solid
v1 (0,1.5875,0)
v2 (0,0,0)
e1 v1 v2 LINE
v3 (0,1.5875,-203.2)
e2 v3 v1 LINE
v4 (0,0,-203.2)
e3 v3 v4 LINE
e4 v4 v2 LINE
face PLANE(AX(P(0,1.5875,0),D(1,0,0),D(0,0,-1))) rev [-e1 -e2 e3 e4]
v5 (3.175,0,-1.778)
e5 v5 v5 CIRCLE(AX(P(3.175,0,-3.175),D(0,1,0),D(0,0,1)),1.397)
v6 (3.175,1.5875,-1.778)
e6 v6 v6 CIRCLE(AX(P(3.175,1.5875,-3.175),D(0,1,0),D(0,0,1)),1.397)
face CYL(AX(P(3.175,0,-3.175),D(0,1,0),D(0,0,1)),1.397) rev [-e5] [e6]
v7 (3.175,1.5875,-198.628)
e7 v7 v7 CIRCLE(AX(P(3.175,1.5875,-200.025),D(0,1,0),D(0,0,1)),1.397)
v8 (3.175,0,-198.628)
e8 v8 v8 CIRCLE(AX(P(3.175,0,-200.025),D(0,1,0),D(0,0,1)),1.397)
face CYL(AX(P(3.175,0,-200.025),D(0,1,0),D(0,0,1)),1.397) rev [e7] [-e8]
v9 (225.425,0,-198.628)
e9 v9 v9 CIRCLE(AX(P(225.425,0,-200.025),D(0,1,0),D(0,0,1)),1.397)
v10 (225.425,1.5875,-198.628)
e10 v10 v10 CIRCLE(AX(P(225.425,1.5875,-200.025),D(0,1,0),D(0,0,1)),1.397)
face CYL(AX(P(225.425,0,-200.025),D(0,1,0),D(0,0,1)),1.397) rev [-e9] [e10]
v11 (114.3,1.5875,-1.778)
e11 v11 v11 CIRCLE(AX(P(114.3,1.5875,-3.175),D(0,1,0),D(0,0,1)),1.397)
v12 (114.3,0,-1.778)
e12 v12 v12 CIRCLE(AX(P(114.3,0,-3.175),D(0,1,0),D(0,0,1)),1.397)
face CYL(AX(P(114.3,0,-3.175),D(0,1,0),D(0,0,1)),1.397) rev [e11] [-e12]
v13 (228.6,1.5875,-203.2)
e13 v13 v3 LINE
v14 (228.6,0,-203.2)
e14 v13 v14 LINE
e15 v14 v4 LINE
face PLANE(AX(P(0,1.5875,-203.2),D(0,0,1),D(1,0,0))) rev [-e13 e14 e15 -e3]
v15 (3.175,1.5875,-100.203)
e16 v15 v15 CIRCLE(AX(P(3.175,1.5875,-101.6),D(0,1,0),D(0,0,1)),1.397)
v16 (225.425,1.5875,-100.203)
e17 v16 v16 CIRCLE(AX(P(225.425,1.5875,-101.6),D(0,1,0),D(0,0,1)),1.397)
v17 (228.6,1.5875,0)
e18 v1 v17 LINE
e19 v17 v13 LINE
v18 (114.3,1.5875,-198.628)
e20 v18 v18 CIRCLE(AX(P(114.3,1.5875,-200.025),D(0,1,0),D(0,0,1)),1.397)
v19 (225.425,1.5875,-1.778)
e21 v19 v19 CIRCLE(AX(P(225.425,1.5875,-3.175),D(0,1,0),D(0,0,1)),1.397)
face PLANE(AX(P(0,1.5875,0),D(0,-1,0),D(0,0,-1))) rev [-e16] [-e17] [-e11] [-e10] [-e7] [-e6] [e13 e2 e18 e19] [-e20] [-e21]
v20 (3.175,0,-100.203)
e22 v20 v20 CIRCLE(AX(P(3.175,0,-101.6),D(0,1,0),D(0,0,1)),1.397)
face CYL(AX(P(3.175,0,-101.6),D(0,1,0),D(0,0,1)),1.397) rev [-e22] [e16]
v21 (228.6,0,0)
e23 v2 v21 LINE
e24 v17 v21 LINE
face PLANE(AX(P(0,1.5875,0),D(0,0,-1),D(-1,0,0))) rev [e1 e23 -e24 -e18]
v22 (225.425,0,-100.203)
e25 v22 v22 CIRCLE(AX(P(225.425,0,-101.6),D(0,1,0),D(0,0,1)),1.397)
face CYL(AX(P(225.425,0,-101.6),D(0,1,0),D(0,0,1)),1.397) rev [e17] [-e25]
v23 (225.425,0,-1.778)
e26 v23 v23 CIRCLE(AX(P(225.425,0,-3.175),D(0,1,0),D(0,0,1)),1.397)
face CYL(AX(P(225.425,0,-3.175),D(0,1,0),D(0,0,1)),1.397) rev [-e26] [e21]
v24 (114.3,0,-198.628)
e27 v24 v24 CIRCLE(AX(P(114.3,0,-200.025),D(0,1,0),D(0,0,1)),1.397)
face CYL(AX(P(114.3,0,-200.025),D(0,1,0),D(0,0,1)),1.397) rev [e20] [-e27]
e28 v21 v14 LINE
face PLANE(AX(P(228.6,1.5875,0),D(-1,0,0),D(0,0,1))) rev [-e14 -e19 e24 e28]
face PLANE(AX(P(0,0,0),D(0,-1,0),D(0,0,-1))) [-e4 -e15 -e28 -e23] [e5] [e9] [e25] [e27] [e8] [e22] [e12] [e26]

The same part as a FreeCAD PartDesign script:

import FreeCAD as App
import Part
import Sketcher
from FreeCAD import Vector
Q = App.Units.Quantity

doc = App.newDocument("Part")
body = doc.addObject("PartDesign::Body", "Body")

# Sketch on XZ plane
sketch1 = body.newObject("Sketcher::SketchObject", "Sketch")
sketch1.AttachmentSupport = (doc.getObject("XZ_Plane"), [""])
sketch1.MapMode = "FlatFace"
sketch1.addGeometry([
    Part.LineSegment(Vector(0, -203, 0), Vector(0, 0, 0)),
    Part.LineSegment(Vector(0, 0, 0), Vector(229, 0, 0)),
    Part.LineSegment(Vector(229, 0, 0), Vector(229, -203, 0)),
    Part.LineSegment(Vector(229, -203, 0), Vector(0, -203, 0)),
], False)
sketch1.addConstraint([
    Sketcher.Constraint("Coincident", 0, 2, 1, 1),
    Sketcher.Constraint("Coincident", 1, 2, 2, 1),
    Sketcher.Constraint("Coincident", 2, 2, 3, 1),
    Sketcher.Constraint("Coincident", 3, 2, 0, 1),
    Sketcher.Constraint("Vertical", 0),
    Sketcher.Constraint("Horizontal", 1),
    Sketcher.Constraint("Vertical", 2),
    Sketcher.Constraint("Horizontal", 3),
    Sketcher.Constraint("Coincident", 0, 2, -1, 1),
    Sketcher.Constraint("DistanceX", 1, 1, 1, 2, Q("9 in")),
    Sketcher.Constraint("DistanceY", 0, 1, 0, 2, Q("8 in")),
])
pad1 = body.newObject("PartDesign::Pad", "Pad")
pad1.Profile = sketch1
pad1.Length = Q("0.0625 in")
pad1.Reversed = True

# Sketch on XZ plane
sketch2 = body.newObject("Sketcher::SketchObject", "Sketch001")
sketch2.AttachmentSupport = (doc.getObject("XZ_Plane"), [""])
sketch2.MapMode = "FlatFace"
sketch2.AttachmentOffset = App.Placement(Vector(0, 0, -0.0625 * 25.4), App.Rotation())
sketch2.addGeometry([
    Part.Circle(Vector(3.2, -200, 0), Vector(0, 0, 1), 1.4),  # 0
    Part.Circle(Vector(114.3, -200, 0), Vector(0, 0, 1), 1.4),  # 1
    Part.Circle(Vector(225.4, -200, 0), Vector(0, 0, 1), 1.4),  # 2
    Part.Circle(Vector(3.2, -3.2, 0), Vector(0, 0, 1), 1.4),  # 3
    Part.Circle(Vector(114.3, -3.2, 0), Vector(0, 0, 1), 1.4),  # 4
    Part.Circle(Vector(225.4, -3.2, 0), Vector(0, 0, 1), 1.4),  # 5
    Part.Circle(Vector(3.2, -101.6, 0), Vector(0, 0, 1), 1.4),  # 6
    Part.Circle(Vector(225.4, -101.6, 0), Vector(0, 0, 1), 1.4),  # 7
], False)
sketch2.addConstraint([
    Sketcher.Constraint("Equal", 0, 1),
    Sketcher.Constraint("Equal", 1, 2),
    Sketcher.Constraint("Equal", 2, 3),
    Sketcher.Constraint("Equal", 3, 4),
    Sketcher.Constraint("Equal", 4, 5),
    Sketcher.Constraint("Equal", 5, 6),
    Sketcher.Constraint("Equal", 6, 7),
    Sketcher.Constraint("Horizontal", 0, 3, 1, 3),
    Sketcher.Constraint("Horizontal", 1, 3, 2, 3),
    Sketcher.Constraint("Horizontal", 3, 3, 4, 3),
    Sketcher.Constraint("Horizontal", 4, 3, 5, 3),
    Sketcher.Constraint("Horizontal", 6, 3, 7, 3),
    Sketcher.Constraint("Vertical", 0, 3, 3, 3),
    Sketcher.Constraint("Vertical", 1, 3, 4, 3),
    Sketcher.Constraint("Vertical", 2, 3, 5, 3),
    Sketcher.Constraint("Vertical", 3, 3, 6, 3),
    Sketcher.Constraint("Vertical", 5, 3, 7, 3),
    Sketcher.Constraint("Diameter", 0, Q("0.11 in")),
    Sketcher.Constraint("DistanceY", 6, 3, -1, 1, Q("4 in")),
    Sketcher.Constraint("DistanceX", -1, 1, 1, 3, Q("4.5 in")),
    Sketcher.Constraint("DistanceX", 0, 3, 2, 3, Q("8.75 in")),
    Sketcher.Constraint("DistanceY", 0, 3, 3, 3, Q("7.75 in")),
    Sketcher.Constraint("DistanceX", -1, 1, 0, 3, Q("0.125 in")),
    Sketcher.Constraint("DistanceY", 0, 3, -1, 1, Q("7.875 in")),
])
pocket1 = body.newObject("PartDesign::Pocket", "Pocket")
pocket1.Profile = sketch2
pocket1.Type = "ThroughAll"
pocket1.Reversed = True

doc.recompute()
